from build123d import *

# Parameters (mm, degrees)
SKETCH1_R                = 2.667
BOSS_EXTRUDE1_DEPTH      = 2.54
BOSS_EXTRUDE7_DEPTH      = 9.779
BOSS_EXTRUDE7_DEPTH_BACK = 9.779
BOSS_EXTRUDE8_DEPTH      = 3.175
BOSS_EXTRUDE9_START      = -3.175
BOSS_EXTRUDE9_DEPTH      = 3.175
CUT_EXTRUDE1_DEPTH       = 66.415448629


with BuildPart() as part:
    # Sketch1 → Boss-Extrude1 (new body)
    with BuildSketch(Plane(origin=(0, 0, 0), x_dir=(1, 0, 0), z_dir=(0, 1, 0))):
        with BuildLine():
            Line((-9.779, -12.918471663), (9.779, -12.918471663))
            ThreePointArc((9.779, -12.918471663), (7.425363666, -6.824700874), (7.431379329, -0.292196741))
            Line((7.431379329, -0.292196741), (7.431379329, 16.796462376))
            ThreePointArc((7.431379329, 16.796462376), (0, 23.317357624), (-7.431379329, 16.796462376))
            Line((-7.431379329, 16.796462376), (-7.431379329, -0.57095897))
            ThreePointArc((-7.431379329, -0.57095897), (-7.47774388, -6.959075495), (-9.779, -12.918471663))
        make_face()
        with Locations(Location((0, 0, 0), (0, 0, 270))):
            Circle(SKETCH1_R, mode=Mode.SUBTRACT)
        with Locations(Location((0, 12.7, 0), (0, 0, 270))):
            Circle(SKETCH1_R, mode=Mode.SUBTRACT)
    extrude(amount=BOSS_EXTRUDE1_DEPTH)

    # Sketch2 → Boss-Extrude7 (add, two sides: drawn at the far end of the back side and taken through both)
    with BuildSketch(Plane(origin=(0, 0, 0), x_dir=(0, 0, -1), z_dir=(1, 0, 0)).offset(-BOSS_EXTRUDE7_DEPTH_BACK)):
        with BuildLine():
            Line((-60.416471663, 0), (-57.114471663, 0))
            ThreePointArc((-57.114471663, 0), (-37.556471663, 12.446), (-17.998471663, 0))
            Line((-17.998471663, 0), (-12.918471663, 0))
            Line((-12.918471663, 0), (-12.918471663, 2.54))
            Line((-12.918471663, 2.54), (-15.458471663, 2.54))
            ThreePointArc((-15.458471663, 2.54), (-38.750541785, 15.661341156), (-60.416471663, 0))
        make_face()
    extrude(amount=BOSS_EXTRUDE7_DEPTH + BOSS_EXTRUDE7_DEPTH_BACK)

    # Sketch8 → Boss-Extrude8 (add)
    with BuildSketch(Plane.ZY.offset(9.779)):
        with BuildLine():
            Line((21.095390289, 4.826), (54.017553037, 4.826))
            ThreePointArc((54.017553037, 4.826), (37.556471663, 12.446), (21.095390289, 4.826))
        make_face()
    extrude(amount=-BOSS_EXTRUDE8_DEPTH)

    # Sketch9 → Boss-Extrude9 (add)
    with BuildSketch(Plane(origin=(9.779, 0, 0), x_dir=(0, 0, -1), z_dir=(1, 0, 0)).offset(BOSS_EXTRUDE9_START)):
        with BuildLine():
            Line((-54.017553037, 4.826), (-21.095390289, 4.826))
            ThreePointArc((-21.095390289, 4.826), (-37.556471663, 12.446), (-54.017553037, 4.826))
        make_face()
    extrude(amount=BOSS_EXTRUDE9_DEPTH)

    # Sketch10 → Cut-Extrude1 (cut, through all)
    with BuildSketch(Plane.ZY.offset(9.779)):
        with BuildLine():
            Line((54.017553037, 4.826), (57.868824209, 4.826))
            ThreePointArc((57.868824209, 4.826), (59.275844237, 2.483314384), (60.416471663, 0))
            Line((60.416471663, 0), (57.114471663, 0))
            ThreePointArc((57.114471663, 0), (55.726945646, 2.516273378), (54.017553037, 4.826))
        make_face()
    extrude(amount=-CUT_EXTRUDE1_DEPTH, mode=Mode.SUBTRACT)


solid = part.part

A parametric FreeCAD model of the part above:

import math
import FreeCAD as App
import Part
import Sketcher
Q = App.Units.Quantity

doc = App.newDocument("Part")
body = doc.addObject("PartDesign::Body", "Body")

sketch1 = doc.addObject("Sketcher::SketchObject", "Sketch")
body.addObject(sketch1)
sketch1.AttachmentSupport = (doc.XZ_Plane, [""])
sketch1.MapMode = "FlatFace"
sketch1.addGeometry([
    Part.LineSegment(App.Vector(-9.779, 12.918472, 0), App.Vector(9.779, 12.918472, 0)),
    Part.ArcOfCircle(Part.Circle(App.Vector(24.905778, 3.574543, 0), App.Vector(0, 0, 1), 17.78), math.radians(148.296052), math.radians(190.638333)),
    Part.LineSegment(App.Vector(7.431379, 0.292197, 0), App.Vector(7.431379, -16.796462, 0)),
    Part.ArcOfCircle(Part.Circle(App.Vector(0, -15.822415, 0), App.Vector(0, 0, 1), 7.494943), math.radians(-172.532682), math.radians(-7.467318)),
    Part.LineSegment(App.Vector(-7.431379, -16.796462, 0), App.Vector(-7.431379, 0.570959, 0)),
    Part.ArcOfCircle(Part.Circle(App.Vector(-24.944837, 3.638074, 0), App.Vector(0, 0, 1), 17.78), math.radians(-9.933419), math.radians(31.463624)),
    Part.Circle(App.Vector(0, 0, 0), App.Vector(0, 0, 1), 2.667),
    Part.Circle(App.Vector(0, -12.7, 0), App.Vector(0, 0, 1), 2.667),
], False)
sketch1.addConstraint([
    Sketcher.Constraint("Coincident", 0, 2, 1, 1),
    Sketcher.Constraint("Coincident", 1, 2, 2, 1),
    Sketcher.Constraint("Coincident", 2, 2, 3, 2),
    Sketcher.Constraint("Coincident", 3, 1, 4, 1),
    Sketcher.Constraint("Coincident", 4, 2, 5, 1),
    Sketcher.Constraint("Coincident", 5, 2, 0, 1),
    Sketcher.Constraint("Horizontal", 0),
    Sketcher.Constraint("Vertical", 2),
    Sketcher.Constraint("Vertical", 4),
    Sketcher.Constraint("Coincident", 6, 3, -1, 1),
    Sketcher.Constraint("Equal", 1, 5),
    Sketcher.Constraint("Equal", 6, 7),
    Sketcher.Constraint("Symmetric", 2, 2, 3, 1, -2),
    Sketcher.Constraint("PointOnObject", 7, 3, -2),
    Sketcher.Constraint("Radius", 1, Q("0.7 in")),
    Sketcher.Constraint("Diameter", 6, Q("0.21 in")),
    Sketcher.Constraint("DistanceX", 0, 1, 0, 2, Q("0.77 in")),
    Sketcher.Constraint("DistanceY", 7, 3, -1, 1, Q("0.5 in")),
    Sketcher.Constraint("DistanceX", -1, 1, 0, 2, Q("0.385 in")),
    Sketcher.Constraint("Radius", 3, 7.494943),
    Sketcher.Constraint("DistanceY", 2, 2, 2, 1, 17.088659),
    Sketcher.Constraint("DistanceY", 4, 1, 4, 2, 17.367421),
    Sketcher.Constraint("DistanceX", 1, 2, 1, 3, 17.474398),
    Sketcher.Constraint("DistanceY", -1, 1, 0, 2, 12.918472),
    Sketcher.Constraint("DistanceX", -1, 1, 1, 2, 7.431379),
])
pad1 = doc.addObject("PartDesign::Pad", "Pad")
body.addObject(pad1)
pad1.Profile = sketch1
pad1.Length = Q("0.1 in")
pad1.Reversed = True

sketch2 = doc.addObject("Sketcher::SketchObject", "Sketch001")
body.addObject(sketch2)
sketch2.AttachmentSupport = (doc.YZ_Plane, [""])
sketch2.MapMode = "FlatFace"
sketch2.addGeometry([
    Part.LineSegment(App.Vector(0, 60.416472, 0), App.Vector(0, 57.114472, 0)),
    Part.ArcOfCircle(Part.Circle(App.Vector(-9.144, 37.556472, 0), App.Vector(0, 0, 1), 21.59), math.radians(-64.942385), math.radians(64.942385)),
    Part.LineSegment(App.Vector(0, 17.998472, 0), App.Vector(0, 12.918472, 0)),
    Part.LineSegment(App.Vector(0, 12.918472, 0), App.Vector(2.54, 12.918472, 0)),
    Part.LineSegment(App.Vector(2.54, 12.918472, 0), App.Vector(2.54, 15.458472, 0)),
    Part.ArcOfCircle(Part.Circle(App.Vector(-9.090214, 37.352149, 0), App.Vector(0, 0, 1), 24.791026), math.radians(-62.022163), math.radians(68.489387)),
], False)
sketch2.addConstraint([
    Sketcher.Constraint("Coincident", 0, 2, 1, 2),
    Sketcher.Constraint("Coincident", 1, 1, 2, 1),
    Sketcher.Constraint("Coincident", 2, 2, 3, 1),
    Sketcher.Constraint("Coincident", 3, 2, 4, 1),
    Sketcher.Constraint("Coincident", 4, 2, 5, 1),
    Sketcher.Constraint("Coincident", 5, 2, 0, 1),
    Sketcher.Constraint("Vertical", 0),
    Sketcher.Constraint("Vertical", 2),
    Sketcher.Constraint("Horizontal", 3),
    Sketcher.Constraint("Vertical", 4),
    Sketcher.Constraint("PointOnObject", 0, 2, -2),
    Sketcher.Constraint("PointOnObject", 1, 1, -2),
    Sketcher.Constraint("Equal", 3, 4),
    Sketcher.Constraint("Radius", 1, Q("0.85 in")),
    Sketcher.Constraint("DistanceX", 3, 1, 3, 2, Q("0.1 in")),
    Sketcher.Constraint("DistanceY", 2, 2, 2, 1, Q("0.2 in")),
    Sketcher.Constraint("DistanceY", 0, 2, 0, 1, Q("0.13 in")),
    Sketcher.Constraint("DistanceY", 1, 3, 5, 2, Q("0.9 in")),
    Sketcher.Constraint("Radius", 5, 24.791026),
    Sketcher.Constraint("DistanceY", -1, 1, 1, 3, 37.556472),
])
pad2 = doc.addObject("PartDesign::Pad", "Pad001")
body.addObject(pad2)
pad2.Profile = sketch2
pad2.Type = "TwoLengths"
pad2.Length = Q("0.385 in")
pad2.Length2 = Q("0.385 in")

sketch3 = doc.addObject("Sketcher::SketchObject", "Sketch002")
body.addObject(sketch3)
sketch3.AttachmentSupport = (doc.YZ_Plane, [""])
sketch3.MapMode = "FlatFace"
sketch3.AttachmentOffset = App.Placement(App.Vector(0, 0, -0.385 * 25.4), App.Rotation())
sketch3.addGeometry([
    Part.LineSegment(App.Vector(4.826, 21.09539, 0), App.Vector(4.826, 54.017553, 0)),
    Part.ArcOfCircle(Part.Circle(App.Vector(-9.144, 37.556472, 0), App.Vector(0, 0, 1), 21.59), math.radians(-49.679785), math.radians(49.679785)),
], False)
sketch3.addConstraint([
    Sketcher.Constraint("Coincident", 0, 1, 1, 1),
    Sketcher.Constraint("Coincident", 1, 2, 0, 2),
    Sketcher.Constraint("Vertical", 0),
    Sketcher.Constraint("Radius", 1, Q("0.85 in")),
    Sketcher.Constraint("DistanceX", 1, 3, -1, 1, Q("0.36 in")),
    Sketcher.Constraint("DistanceX", -1, 1, 0, 1, Q("0.19 in")),
    Sketcher.Constraint("DistanceY", -1, 1, 1, 3, 37.556472),
])
pad3 = doc.addObject("PartDesign::Pad", "Pad002")
body.addObject(pad3)
pad3.Profile = sketch3
pad3.Length = Q("0.125 in")

sketch4 = doc.addObject("Sketcher::SketchObject", "Sketch003")
body.addObject(sketch4)
sketch4.AttachmentSupport = (doc.YZ_Plane, [""])
sketch4.MapMode = "FlatFace"
sketch4.AttachmentOffset = App.Placement(App.Vector(0, 0, 0.26 * 25.4), App.Rotation())
sketch4.addGeometry([
    Part.LineSegment(App.Vector(4.826, 54.017553, 0), App.Vector(4.826, 21.09539, 0)),
    Part.ArcOfCircle(Part.Circle(App.Vector(-9.144, 37.556472, 0), App.Vector(0, 0, 1), 21.59), math.radians(-49.679785), math.radians(49.679785)),
], False)
sketch4.addConstraint([
    Sketcher.Constraint("Coincident", 0, 1, 1, 2),
    Sketcher.Constraint("Coincident", 1, 1, 0, 2),
    Sketcher.Constraint("Vertical", 0),
    Sketcher.Constraint("Radius", 1, Q("0.85 in")),
    Sketcher.Constraint("DistanceX", 1, 3, -1, 1, Q("0.36 in")),
    Sketcher.Constraint("DistanceX", -1, 1, 0, 1, Q("0.19 in")),
    Sketcher.Constraint("DistanceY", -1, 1, 1, 3, 37.556472),
])
pad4 = doc.addObject("PartDesign::Pad", "Pad003")
body.addObject(pad4)
pad4.Profile = sketch4
pad4.Length = Q("0.125 in")

sketch5 = doc.addObject("Sketcher::SketchObject", "Sketch004")
body.addObject(sketch5)
sketch5.AttachmentSupport = (doc.YZ_Plane, [""])
sketch5.MapMode = "FlatFace"
sketch5.AttachmentOffset = App.Placement(App.Vector(0, 0, -0.385 * 25.4), App.Rotation())
sketch5.addGeometry([
    Part.LineSegment(App.Vector(4.826, 57.868824, 0), App.Vector(4.826, 54.017553, 0)),
    Part.ArcOfCircle(Part.Circle(App.Vector(-9.144, 37.556472, 0), App.Vector(0, 0, 1), 21.59), math.radians(49.679785), math.radians(64.942385)),
    Part.LineSegment(App.Vector(0, 57.114472, 0), App.Vector(0, 60.416472, 0)),
    Part.ArcOfCircle(Part.Circle(App.Vector(-9.090214, 37.352149, 0), App.Vector(0, 0, 1), 24.791026), math.radians(55.851428), math.radians(68.489387)),
], False)
sketch5.addConstraint([
    Sketcher.Constraint("Coincident", 0, 2, 1, 1),
    Sketcher.Constraint("Coincident", 1, 2, 2, 1),
    Sketcher.Constraint("Coincident", 2, 2, 3, 2),
    Sketcher.Constraint("Coincident", 3, 1, 0, 1),
    Sketcher.Constraint("Vertical", 0),
    Sketcher.Constraint("Vertical", 2),
    Sketcher.Constraint("PointOnObject", 1, 2, -2),
    Sketcher.Constraint("Radius", 1, Q("0.85 in")),
    Sketcher.Constraint("DistanceY", 2, 1, 2, 2, Q("0.13 in")),
    Sketcher.Constraint("DistanceY", 1, 3, 2, 2, Q("0.9 in")),
    Sketcher.Constraint("DistanceX", -1, 1, 0, 2, Q("0.19 in")),
    Sketcher.Constraint("DistanceY", -1, 1, 3, 1, Q("2.2783002 in")),
    Sketcher.Constraint("Radius", 3, 24.791026),
    Sketcher.Constraint("DistanceY", 0, 2, 0, 1, 3.851271),
])
pocket1 = doc.addObject("PartDesign::Pocket", "Pocket")
body.addObject(pocket1)
pocket1.Profile = sketch5
pocket1.Type = "ThroughAll"
pocket1.Reversed = True

doc.recompute()
